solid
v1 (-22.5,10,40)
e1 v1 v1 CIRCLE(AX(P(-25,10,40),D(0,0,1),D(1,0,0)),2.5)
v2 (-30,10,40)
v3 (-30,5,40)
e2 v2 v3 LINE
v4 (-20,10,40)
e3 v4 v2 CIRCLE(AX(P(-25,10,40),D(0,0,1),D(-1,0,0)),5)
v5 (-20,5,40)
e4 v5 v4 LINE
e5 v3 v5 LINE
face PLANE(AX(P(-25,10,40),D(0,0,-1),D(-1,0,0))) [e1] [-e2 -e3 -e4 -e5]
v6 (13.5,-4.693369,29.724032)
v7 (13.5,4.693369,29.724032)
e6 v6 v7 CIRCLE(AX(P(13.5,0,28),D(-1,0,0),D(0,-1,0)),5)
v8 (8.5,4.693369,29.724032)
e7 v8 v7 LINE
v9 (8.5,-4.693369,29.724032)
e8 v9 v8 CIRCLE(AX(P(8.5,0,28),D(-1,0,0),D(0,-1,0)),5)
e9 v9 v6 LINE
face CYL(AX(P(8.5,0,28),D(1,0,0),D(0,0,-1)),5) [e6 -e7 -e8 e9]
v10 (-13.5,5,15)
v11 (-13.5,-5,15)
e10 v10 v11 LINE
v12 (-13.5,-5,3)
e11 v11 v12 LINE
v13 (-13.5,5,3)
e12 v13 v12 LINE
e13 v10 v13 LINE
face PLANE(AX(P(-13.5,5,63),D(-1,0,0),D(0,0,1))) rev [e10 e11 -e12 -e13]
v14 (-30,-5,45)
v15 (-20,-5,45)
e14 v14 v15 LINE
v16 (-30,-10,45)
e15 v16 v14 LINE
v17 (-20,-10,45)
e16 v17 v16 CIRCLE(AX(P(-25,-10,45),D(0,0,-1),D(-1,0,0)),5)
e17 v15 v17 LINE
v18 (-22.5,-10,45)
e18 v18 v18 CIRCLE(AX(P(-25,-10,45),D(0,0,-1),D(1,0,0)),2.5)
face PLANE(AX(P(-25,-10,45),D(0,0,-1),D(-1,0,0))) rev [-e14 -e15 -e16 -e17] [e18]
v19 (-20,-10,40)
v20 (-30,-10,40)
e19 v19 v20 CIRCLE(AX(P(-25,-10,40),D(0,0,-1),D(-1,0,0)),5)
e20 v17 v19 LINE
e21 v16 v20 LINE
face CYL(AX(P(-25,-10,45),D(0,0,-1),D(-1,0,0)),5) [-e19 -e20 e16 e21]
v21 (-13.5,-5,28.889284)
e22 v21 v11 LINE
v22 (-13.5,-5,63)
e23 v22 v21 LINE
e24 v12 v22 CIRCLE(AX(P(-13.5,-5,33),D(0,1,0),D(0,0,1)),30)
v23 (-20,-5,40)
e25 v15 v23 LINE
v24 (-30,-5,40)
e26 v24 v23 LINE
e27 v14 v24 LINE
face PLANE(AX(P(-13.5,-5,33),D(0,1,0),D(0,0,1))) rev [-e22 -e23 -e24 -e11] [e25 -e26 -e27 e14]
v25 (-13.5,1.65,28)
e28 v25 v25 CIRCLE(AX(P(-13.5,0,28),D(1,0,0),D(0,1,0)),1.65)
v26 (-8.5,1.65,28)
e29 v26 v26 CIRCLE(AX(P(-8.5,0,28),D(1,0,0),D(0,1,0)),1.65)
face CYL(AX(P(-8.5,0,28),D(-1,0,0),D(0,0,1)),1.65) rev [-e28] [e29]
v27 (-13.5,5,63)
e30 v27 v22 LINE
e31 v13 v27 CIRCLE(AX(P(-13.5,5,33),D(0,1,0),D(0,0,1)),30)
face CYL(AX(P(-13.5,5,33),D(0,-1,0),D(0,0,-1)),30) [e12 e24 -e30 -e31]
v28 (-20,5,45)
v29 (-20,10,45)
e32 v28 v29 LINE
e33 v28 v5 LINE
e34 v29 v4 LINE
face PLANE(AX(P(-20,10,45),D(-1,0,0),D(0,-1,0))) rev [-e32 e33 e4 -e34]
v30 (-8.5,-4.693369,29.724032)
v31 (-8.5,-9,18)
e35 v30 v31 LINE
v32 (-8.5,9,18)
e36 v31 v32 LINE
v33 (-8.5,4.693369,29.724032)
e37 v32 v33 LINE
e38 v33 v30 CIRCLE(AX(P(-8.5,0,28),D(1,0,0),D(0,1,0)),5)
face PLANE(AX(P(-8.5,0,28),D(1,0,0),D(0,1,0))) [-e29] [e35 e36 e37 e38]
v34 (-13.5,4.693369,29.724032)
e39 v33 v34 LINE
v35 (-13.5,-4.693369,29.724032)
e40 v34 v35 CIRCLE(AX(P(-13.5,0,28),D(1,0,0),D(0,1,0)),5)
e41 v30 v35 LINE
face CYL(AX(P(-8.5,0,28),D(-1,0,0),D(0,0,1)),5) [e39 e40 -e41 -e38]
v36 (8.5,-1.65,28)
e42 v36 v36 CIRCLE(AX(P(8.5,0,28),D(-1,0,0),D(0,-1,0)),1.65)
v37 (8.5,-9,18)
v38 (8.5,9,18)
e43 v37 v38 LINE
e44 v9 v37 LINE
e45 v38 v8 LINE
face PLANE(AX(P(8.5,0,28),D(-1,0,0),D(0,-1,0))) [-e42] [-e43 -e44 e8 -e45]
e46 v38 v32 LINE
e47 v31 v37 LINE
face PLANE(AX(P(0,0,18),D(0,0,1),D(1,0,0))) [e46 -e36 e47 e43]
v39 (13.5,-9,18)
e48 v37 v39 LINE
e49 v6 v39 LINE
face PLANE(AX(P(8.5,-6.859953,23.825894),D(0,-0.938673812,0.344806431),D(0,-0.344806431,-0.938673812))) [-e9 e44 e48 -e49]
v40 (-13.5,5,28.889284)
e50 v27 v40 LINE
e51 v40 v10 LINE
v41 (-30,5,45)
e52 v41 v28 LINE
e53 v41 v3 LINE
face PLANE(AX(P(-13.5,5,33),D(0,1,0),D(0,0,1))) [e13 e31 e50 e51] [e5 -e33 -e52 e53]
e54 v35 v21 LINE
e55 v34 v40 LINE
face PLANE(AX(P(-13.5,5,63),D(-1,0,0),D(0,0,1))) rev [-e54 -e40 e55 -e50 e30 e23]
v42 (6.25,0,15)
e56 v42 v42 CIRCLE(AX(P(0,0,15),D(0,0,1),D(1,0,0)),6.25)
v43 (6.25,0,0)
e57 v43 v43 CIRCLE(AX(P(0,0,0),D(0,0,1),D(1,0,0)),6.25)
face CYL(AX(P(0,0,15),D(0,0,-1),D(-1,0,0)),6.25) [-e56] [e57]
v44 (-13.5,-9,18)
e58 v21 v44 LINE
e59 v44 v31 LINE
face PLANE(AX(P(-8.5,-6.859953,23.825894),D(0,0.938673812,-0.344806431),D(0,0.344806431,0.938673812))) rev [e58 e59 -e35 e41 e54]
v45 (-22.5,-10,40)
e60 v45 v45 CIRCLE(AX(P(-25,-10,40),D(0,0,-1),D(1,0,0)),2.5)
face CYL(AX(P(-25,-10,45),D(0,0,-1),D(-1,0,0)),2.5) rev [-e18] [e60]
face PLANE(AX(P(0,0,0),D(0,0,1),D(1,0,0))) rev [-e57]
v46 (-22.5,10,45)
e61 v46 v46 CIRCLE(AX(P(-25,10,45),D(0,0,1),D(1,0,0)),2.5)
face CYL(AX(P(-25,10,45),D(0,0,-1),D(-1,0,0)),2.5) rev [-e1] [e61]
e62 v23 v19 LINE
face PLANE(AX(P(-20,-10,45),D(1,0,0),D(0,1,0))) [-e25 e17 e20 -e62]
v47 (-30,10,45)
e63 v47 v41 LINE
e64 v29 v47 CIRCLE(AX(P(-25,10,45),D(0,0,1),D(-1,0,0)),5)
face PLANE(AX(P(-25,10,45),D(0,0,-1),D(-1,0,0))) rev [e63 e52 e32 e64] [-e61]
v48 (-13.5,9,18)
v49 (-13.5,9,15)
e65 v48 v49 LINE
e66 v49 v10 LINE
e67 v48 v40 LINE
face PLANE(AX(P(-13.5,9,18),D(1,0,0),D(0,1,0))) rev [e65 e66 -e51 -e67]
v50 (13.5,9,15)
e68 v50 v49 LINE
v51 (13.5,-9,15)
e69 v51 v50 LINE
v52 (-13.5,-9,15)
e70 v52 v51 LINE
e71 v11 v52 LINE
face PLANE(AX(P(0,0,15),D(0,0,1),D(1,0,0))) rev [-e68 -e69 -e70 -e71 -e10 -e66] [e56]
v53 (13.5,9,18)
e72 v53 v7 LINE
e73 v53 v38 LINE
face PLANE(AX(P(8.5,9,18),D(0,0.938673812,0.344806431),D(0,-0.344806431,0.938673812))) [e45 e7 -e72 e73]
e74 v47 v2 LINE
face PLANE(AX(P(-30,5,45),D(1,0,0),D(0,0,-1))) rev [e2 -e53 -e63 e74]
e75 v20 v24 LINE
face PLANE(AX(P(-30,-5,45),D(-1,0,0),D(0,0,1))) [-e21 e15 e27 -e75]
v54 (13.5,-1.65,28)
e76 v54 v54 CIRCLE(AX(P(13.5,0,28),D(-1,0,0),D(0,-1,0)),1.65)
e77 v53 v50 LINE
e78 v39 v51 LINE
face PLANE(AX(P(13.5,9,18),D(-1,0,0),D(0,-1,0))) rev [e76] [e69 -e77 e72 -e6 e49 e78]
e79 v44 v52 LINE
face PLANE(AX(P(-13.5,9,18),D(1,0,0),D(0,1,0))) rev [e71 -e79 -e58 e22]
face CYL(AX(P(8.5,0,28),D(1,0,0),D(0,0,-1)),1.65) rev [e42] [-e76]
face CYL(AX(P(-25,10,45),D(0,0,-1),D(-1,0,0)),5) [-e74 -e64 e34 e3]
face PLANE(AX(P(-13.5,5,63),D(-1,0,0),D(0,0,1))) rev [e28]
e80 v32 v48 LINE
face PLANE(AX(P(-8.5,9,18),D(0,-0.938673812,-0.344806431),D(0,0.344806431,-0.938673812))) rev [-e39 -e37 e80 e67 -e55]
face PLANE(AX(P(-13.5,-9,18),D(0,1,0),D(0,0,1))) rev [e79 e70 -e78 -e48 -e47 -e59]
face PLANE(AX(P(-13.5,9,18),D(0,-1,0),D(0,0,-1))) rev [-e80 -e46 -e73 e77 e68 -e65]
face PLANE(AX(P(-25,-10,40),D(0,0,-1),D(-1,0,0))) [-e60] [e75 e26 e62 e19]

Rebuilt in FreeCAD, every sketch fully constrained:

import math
import FreeCAD as App
import Part
import Sketcher

V = App.Vector
Q = App.Units.Quantity


def add_polygon(sketch, points):
    """Adds a closed chain of lines whose ends are joined by coincident constraints."""
    first, n = sketch.GeometryCount, len(points)
    for a, b in zip(points, points[1:] + points[:1]):
        sketch.addGeometry(Part.LineSegment(App.Vector(*a, 0), App.Vector(*b, 0)), False)
    for i in range(n):
        sketch.addConstraint(Sketcher.Constraint("Coincident", first + i, 2, first + (i + 1) % n, 1))

doc = App.newDocument("Part")
body = doc.addObject("PartDesign::Body", "Body")

sketch1 = doc.addObject("Sketcher::SketchObject", "Sketch")
body.addObject(sketch1)
sketch1.AttachmentSupport = (doc.XY_Plane, [""])
sketch1.MapMode = "FlatFace"
sketch1.addGeometry(Part.Circle(V(0, 0, 0), V(0, 0, 1), 6.25), False)
sketch1.addConstraint([
    Sketcher.Constraint("Coincident", 0, 3, -1, 1),
    Sketcher.Constraint("Diameter", 0, Q("12.5 mm")),
])
pad1 = doc.addObject("PartDesign::Pad", "Pad")
body.addObject(pad1)
pad1.Profile = sketch1
pad1.Length = 15

sketch2 = doc.addObject("Sketcher::SketchObject", "Sketch001")
body.addObject(sketch2)
sketch2.AttachmentSupport = (doc.XY_Plane, [""])
sketch2.MapMode = "FlatFace"
sketch2.AttachmentOffset = App.Placement(V(0, 0, 15), App.Rotation())
add_polygon(sketch2, [(-13.5, 9), (-13.5, -9), (13.5, -9), (13.5, 9)])
sketch2.addConstraint([
    Sketcher.Constraint("Vertical", 0),
    Sketcher.Constraint("Horizontal", 1),
    Sketcher.Constraint("Vertical", 2),
    Sketcher.Constraint("Horizontal", 3),
    Sketcher.Constraint("Symmetric", 0, 2, 2, 2, -1, 1),
    Sketcher.Constraint("DistanceX", 1, 1, 1, 2, Q("27 mm")),
    Sketcher.Constraint("DistanceY", 0, 2, 0, 1, Q("18 mm")),
])
pad2 = doc.addObject("PartDesign::Pad", "Pad001")
body.addObject(pad2)
pad2.Profile = sketch2
pad2.Length = 3

sketch3 = doc.addObject("Sketcher::SketchObject", "Sketch002")
body.addObject(sketch3)
sketch3.AttachmentSupport = (doc.YZ_Plane, [""])
sketch3.MapMode = "FlatFace"
sketch3.AttachmentOffset = App.Placement(V(0, 0, 13.5), App.Rotation())
sketch3.addGeometry([
    Part.LineSegment(V(9, 18, 0), V(4.693369, 29.724032, 0)),
    Part.ArcOfCircle(Part.Circle(V(0, 28, 0), V(0, 0, 1), 5), math.radians(20.16998), math.radians(159.83002)),
    Part.LineSegment(V(-4.693369, 29.724032, 0), V(-9, 18, 0)),
    Part.LineSegment(V(-9, 18, 0), V(9, 18, 0)),
    Part.Circle(V(0, 28, 0), V(0, 0, 1), 1.65),
], False)
sketch3.addConstraint([
    Sketcher.Constraint("Tangent", 0, 2, 1, 1),
    Sketcher.Constraint("Tangent", 1, 2, 2, 1),
    Sketcher.Constraint("Coincident", 2, 2, 3, 1),
    Sketcher.Constraint("Coincident", 3, 2, 0, 1),
    Sketcher.Constraint("Horizontal", 3),
    Sketcher.Constraint("Coincident", 4, 3, 1, 3),
    Sketcher.Constraint("Symmetric", 0, 2, 1, 2, -2),
    Sketcher.Constraint("Radius", 1, Q("5 mm")),
    Sketcher.Constraint("Diameter", 4, Q("3.3 mm")),
    Sketcher.Constraint("DistanceX", 3, 1, 3, 2, Q("18 mm")),
    Sketcher.Constraint("DistanceY", -1, 1, 1, 3, Q("28 mm")),
    Sketcher.Constraint("DistanceY", -1, 1, 2, 2, Q("18 mm")),
])
pad3 = doc.addObject("PartDesign::Pad", "Pad002")
body.addObject(pad3)
pad3.Profile = sketch3
pad3.Length = 5
pad3.Reversed = True

sketch4 = doc.addObject("Sketcher::SketchObject", "Sketch003")
body.addObject(sketch4)
sketch4.AttachmentSupport = (doc.YZ_Plane, [""])
sketch4.MapMode = "FlatFace"
sketch4.AttachmentOffset = App.Placement(V(0, 0, -13.5), App.Rotation())
sketch4.addGeometry([
    Part.LineSegment(V(9, 18, 0), V(4.693369, 29.724032, 0)),
    Part.ArcOfCircle(Part.Circle(V(0, 28, 0), V(0, 0, 1), 5), math.radians(20.16998), math.radians(159.83002)),
    Part.LineSegment(V(-4.693369, 29.724032, 0), V(-9, 18, 0)),
    Part.LineSegment(V(-9, 18, 0), V(9, 18, 0)),
    Part.Circle(V(0, 28, 0), V(0, 0, 1), 1.65),
], False)
sketch4.addConstraint([
    Sketcher.Constraint("Tangent", 0, 2, 1, 1),
    Sketcher.Constraint("Tangent", 1, 2, 2, 1),
    Sketcher.Constraint("Coincident", 2, 2, 3, 1),
    Sketcher.Constraint("Coincident", 3, 2, 0, 1),
    Sketcher.Constraint("Horizontal", 3),
    Sketcher.Constraint("Coincident", 4, 3, 1, 3),
    Sketcher.Constraint("Symmetric", 0, 2, 1, 2, -2),
    Sketcher.Constraint("Radius", 1, Q("5 mm")),
    Sketcher.Constraint("Diameter", 4, Q("3.3 mm")),
    Sketcher.Constraint("DistanceX", 3, 1, 3, 2, Q("18 mm")),
    Sketcher.Constraint("DistanceY", -1, 1, 1, 3, Q("28 mm")),
    Sketcher.Constraint("DistanceY", -1, 1, 2, 2, Q("18 mm")),
])
pad4 = doc.addObject("PartDesign::Pad", "Pad003")
body.addObject(pad4)
pad4.Profile = sketch4
pad4.Length = 5

sketch5 = doc.addObject("Sketcher::SketchObject", "Sketch004")
body.addObject(sketch5)
sketch5.AttachmentSupport = (doc.XZ_Plane, [""])
sketch5.MapMode = "FlatFace"
sketch5.addGeometry([
    Part.LineSegment(V(-13.5, 63, 0), V(-13.5, 3, 0)),
    Part.ArcOfCircle(Part.Circle(V(-13.5, 33, 0), V(0, 0, 1), 30), math.radians(90), math.radians(270)),
], False)
sketch5.addConstraint([
    Sketcher.Constraint("Coincident", 0, 1, 1, 1),
    Sketcher.Constraint("Coincident", 1, 2, 0, 2),
    Sketcher.Constraint("Vertical", 0),
    Sketcher.Constraint("Vertical", 1, 3, 0, 1),
    Sketcher.Constraint("Radius", 1, Q("30 mm")),
    Sketcher.Constraint("DistanceY", -1, 1, 1, 3, Q("33 mm")),
    Sketcher.Constraint("DistanceX", 1, 3, -1, 1, Q("13.5 mm")),
])
pad5 = doc.addObject("PartDesign::Pad", "Pad004")
body.addObject(pad5)
pad5.Profile = sketch5
pad5.Length = 10
pad5.Midplane = True

sketch6 = doc.addObject("Sketcher::SketchObject", "Sketch005")
body.addObject(sketch6)
sketch6.AttachmentSupport = (doc.XY_Plane, [""])
sketch6.MapMode = "FlatFace"
sketch6.AttachmentOffset = App.Placement(V(0, 0, 40), App.Rotation())
sketch6.addGeometry([
    Part.LineSegment(V(-30, 10, 0), V(-30, 5, 0)),
    Part.LineSegment(V(-30, 5, 0), V(-20, 5, 0)),
    Part.LineSegment(V(-20, 5, 0), V(-20, 10, 0)),
    Part.ArcOfCircle(Part.Circle(V(-25, 10, 0), V(0, 0, 1), 5), math.radians(0), math.radians(180)),
    Part.Circle(V(-25, 10, 0), V(0, 0, 1), 2.5),
], False)
sketch6.addConstraint([
    Sketcher.Constraint("Coincident", 0, 2, 1, 1),
    Sketcher.Constraint("Coincident", 1, 2, 2, 1),
    Sketcher.Constraint("Tangent", 2, 2, 3, 1),
    Sketcher.Constraint("Tangent", 3, 2, 0, 1),
    Sketcher.Constraint("Vertical", 0),
    Sketcher.Constraint("Horizontal", 1),
    Sketcher.Constraint("Vertical", 2),
    Sketcher.Constraint("Coincident", 4, 3, 3, 3),
    Sketcher.Constraint("Diameter", 4, Q("5 mm")),
    Sketcher.Constraint("Radius", 3, Q("5 mm")),
    Sketcher.Constraint("DistanceY", 0, 2, 0, 1, Q("5 mm")),
    Sketcher.Constraint("DistanceX", 3, 3, -1, 1, Q("25 mm")),
    Sketcher.Constraint("DistanceY", -1, 1, 3, 3, Q("10 mm")),
])
pad6 = doc.addObject("PartDesign::Pad", "Pad005")
body.addObject(pad6)
pad6.Profile = sketch6
pad6.Length = 5
doc.recompute()

mirrored = doc.addObject("PartDesign::Mirrored", "Mirrored")
body.addObject(mirrored)
mirrored.Originals = [pad6]
mirrored.MirrorPlane = (doc.XZ_Plane, [""])
body.Tip = mirrored

doc.recompute()
